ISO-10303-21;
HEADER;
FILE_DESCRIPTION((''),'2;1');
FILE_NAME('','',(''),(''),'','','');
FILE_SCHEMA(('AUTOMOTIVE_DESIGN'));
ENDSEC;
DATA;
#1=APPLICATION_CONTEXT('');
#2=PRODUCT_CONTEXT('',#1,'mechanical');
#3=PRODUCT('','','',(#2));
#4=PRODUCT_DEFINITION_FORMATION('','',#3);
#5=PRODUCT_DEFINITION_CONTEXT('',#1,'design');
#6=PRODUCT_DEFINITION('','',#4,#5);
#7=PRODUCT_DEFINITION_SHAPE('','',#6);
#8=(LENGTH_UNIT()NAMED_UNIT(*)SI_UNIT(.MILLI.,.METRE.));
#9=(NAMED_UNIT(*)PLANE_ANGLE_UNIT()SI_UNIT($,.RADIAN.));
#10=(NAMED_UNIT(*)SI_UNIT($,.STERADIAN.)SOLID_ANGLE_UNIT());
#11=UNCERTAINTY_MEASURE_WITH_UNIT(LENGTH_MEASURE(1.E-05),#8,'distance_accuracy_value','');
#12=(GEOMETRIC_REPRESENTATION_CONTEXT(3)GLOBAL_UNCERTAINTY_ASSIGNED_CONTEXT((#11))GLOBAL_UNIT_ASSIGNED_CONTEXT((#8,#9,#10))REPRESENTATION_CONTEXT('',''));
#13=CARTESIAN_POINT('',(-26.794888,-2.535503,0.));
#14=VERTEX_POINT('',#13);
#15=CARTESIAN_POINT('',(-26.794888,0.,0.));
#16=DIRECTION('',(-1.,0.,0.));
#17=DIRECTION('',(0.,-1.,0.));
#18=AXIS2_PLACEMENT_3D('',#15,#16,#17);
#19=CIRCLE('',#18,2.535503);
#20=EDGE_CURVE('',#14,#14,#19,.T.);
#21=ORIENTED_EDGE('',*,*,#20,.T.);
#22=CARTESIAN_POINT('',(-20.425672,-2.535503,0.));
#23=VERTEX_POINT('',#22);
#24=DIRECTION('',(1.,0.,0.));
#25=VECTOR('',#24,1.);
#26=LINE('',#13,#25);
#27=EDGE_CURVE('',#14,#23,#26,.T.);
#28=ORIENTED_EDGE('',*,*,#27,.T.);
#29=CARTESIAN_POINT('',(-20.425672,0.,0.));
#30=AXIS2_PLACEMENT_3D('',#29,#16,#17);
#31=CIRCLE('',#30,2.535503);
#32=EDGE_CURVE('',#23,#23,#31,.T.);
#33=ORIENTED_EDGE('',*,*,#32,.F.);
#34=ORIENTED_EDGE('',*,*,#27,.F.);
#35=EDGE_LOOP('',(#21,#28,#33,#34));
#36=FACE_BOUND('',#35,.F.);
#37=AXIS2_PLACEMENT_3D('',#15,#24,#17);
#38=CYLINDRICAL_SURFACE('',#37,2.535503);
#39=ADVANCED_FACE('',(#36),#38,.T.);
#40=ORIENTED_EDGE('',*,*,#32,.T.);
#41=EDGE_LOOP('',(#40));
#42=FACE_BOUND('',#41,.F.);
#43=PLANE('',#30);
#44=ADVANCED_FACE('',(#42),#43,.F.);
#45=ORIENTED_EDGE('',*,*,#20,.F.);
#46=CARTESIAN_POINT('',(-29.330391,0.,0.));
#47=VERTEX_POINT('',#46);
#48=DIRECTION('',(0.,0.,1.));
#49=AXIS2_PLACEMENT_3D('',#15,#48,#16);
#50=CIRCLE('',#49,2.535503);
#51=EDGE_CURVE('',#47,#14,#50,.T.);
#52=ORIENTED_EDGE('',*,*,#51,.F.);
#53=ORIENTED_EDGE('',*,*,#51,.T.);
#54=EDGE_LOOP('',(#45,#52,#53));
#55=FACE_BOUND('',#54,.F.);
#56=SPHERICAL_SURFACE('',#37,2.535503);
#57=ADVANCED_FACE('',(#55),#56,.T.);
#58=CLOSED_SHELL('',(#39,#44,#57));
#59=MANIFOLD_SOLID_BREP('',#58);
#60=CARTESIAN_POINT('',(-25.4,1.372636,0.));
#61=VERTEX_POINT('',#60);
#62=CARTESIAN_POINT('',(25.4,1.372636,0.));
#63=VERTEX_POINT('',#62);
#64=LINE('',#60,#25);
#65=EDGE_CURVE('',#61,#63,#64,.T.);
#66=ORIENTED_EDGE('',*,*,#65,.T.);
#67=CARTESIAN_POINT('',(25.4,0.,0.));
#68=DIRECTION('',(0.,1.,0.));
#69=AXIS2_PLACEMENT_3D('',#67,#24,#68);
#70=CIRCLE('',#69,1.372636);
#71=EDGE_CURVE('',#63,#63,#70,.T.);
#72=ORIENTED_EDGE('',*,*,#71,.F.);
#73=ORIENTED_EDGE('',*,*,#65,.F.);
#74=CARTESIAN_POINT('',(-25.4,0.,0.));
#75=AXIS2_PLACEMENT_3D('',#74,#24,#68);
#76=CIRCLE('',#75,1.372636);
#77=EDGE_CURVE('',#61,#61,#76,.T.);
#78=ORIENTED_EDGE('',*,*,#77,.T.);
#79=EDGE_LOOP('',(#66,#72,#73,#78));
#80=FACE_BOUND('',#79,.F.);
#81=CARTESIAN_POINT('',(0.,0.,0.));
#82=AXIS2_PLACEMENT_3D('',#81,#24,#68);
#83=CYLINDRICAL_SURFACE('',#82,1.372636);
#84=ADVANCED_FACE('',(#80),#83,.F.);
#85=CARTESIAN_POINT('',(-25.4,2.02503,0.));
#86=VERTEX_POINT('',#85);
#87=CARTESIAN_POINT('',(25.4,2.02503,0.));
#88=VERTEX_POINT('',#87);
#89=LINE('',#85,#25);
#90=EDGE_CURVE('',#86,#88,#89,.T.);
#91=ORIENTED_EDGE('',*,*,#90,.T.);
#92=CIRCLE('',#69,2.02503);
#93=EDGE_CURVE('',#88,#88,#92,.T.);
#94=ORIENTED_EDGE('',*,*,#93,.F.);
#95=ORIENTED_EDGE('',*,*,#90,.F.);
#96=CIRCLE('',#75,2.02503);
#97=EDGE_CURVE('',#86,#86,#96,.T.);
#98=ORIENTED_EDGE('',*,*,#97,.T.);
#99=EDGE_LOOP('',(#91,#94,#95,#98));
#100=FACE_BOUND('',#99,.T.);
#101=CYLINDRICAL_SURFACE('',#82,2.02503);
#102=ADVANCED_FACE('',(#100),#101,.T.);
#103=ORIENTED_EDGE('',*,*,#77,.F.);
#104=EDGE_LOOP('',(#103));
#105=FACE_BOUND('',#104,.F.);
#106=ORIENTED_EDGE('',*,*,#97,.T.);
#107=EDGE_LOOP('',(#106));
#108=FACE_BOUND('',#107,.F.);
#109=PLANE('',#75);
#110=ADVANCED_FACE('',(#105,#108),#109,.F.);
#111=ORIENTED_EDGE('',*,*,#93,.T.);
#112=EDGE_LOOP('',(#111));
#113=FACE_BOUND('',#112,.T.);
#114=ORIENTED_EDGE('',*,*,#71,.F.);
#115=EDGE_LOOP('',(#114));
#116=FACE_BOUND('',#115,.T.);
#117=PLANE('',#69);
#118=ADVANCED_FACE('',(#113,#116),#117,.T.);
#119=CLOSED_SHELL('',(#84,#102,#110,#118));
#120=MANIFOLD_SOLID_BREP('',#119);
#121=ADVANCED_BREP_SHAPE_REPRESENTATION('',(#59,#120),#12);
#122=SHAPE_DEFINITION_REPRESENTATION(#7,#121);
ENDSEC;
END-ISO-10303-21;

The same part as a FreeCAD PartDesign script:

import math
import FreeCAD as App
import Part
import Sketcher
Q = App.Units.Quantity

doc = App.newDocument("Part")
body = doc.addObject("PartDesign::Body", "Body")

sketch1 = doc.addObject("Sketcher::SketchObject", "Sketch")
body.addObject(sketch1)
sketch1.AttachmentSupport = (doc.YZ_Plane, [""])
sketch1.MapMode = "FlatFace"
sketch1.addGeometry(Part.Circle(App.Vector(0, 0, 0), App.Vector(0, 0, 1), 2.02503), False)
sketch1.addConstraint(Sketcher.Constraint("Coincident", 0, 3, -1, 1))
sketch1.addConstraint(Sketcher.Constraint("Diameter", 0, 4.050059))
pad1 = doc.addObject("PartDesign::Pad", "Pad")
body.addObject(pad1)
pad1.Profile = sketch1
pad1.Length = Q("2 in")
pad1.Midplane = True

sketch2 = doc.addObject("Sketcher::SketchObject", "Sketch001")
body.addObject(sketch2)
sketch2.AttachmentSupport = (doc.YZ_Plane, [""])
sketch2.MapMode = "FlatFace"
sketch2.addGeometry(Part.Circle(App.Vector(0, 0, 0), App.Vector(0, 0, 1), 1.372636), False)
sketch2.addConstraint(Sketcher.Constraint("Coincident", 0, 3, -1, 1))
sketch2.addConstraint(Sketcher.Constraint("Diameter", 0, 2.745272))
pocket1 = doc.addObject("PartDesign::Pocket", "Pocket")
body.addObject(pocket1)
pocket1.Profile = sketch2
pocket1.Length = Q("2 in")
pocket1.Midplane = True
body2 = doc.addObject("PartDesign::Body", "Body001")

sketch3 = doc.addObject("Sketcher::SketchObject", "Sketch002")
body2.addObject(sketch3)
sketch3.AttachmentSupport = (doc.getObject("XY_Plane001"), [""])
sketch3.MapMode = "FlatFace"
sketch3.addGeometry(Part.LineSegment(App.Vector(-20.425672, -2.535503, 0), App.Vector(-20.425672, 0, 0)), False)
sketch3.addGeometry(Part.LineSegment(App.Vector(-20.425672, 0, 0), App.Vector(-29.330391, 0, 0)), False)
sketch3.addGeometry(Part.ArcOfCircle(Part.Circle(App.Vector(-26.794888, 0, 0), App.Vector(0, 0, 1), 2.535503), math.radians(180), math.radians(270)), False)
sketch3.addGeometry(Part.LineSegment(App.Vector(-26.794888, -2.535503, 0), App.Vector(-20.425672, -2.535503, 0)), False)
sketch3.addConstraint(Sketcher.Constraint("Coincident", 0, 2, 1, 1))
sketch3.addConstraint(Sketcher.Constraint("Coincident", 1, 2, 2, 1))
sketch3.addConstraint(Sketcher.Constraint("Tangent", 2, 2, 3, 1))
sketch3.addConstraint(Sketcher.Constraint("Coincident", 3, 2, 0, 1))
sketch3.addConstraint(Sketcher.Constraint("Vertical", 0))
sketch3.addConstraint(Sketcher.Constraint("Horizontal", 1))
sketch3.addConstraint(Sketcher.Constraint("Horizontal", 3))
sketch3.addConstraint(Sketcher.Constraint("PointOnObject", 2, 3, -1))
sketch3.addConstraint(Sketcher.Constraint("PointOnObject", 0, 2, -1))
sketch3.addConstraint(Sketcher.Constraint("Radius", 2, 2.535503))
sketch3.addConstraint(Sketcher.Constraint("DistanceX", 1, 2, 1, 1, 8.904719))
sketch3.addConstraint(Sketcher.Constraint("DistanceX", 2, 3, -1, 1, 26.794888))
revolution = doc.addObject("PartDesign::Revolution", "Revolution")
body2.addObject(revolution)
revolution.Profile = sketch3
revolution.ReferenceAxis = (sketch3, ["H_Axis"])
revolution.Angle = 360

doc.recompute()
